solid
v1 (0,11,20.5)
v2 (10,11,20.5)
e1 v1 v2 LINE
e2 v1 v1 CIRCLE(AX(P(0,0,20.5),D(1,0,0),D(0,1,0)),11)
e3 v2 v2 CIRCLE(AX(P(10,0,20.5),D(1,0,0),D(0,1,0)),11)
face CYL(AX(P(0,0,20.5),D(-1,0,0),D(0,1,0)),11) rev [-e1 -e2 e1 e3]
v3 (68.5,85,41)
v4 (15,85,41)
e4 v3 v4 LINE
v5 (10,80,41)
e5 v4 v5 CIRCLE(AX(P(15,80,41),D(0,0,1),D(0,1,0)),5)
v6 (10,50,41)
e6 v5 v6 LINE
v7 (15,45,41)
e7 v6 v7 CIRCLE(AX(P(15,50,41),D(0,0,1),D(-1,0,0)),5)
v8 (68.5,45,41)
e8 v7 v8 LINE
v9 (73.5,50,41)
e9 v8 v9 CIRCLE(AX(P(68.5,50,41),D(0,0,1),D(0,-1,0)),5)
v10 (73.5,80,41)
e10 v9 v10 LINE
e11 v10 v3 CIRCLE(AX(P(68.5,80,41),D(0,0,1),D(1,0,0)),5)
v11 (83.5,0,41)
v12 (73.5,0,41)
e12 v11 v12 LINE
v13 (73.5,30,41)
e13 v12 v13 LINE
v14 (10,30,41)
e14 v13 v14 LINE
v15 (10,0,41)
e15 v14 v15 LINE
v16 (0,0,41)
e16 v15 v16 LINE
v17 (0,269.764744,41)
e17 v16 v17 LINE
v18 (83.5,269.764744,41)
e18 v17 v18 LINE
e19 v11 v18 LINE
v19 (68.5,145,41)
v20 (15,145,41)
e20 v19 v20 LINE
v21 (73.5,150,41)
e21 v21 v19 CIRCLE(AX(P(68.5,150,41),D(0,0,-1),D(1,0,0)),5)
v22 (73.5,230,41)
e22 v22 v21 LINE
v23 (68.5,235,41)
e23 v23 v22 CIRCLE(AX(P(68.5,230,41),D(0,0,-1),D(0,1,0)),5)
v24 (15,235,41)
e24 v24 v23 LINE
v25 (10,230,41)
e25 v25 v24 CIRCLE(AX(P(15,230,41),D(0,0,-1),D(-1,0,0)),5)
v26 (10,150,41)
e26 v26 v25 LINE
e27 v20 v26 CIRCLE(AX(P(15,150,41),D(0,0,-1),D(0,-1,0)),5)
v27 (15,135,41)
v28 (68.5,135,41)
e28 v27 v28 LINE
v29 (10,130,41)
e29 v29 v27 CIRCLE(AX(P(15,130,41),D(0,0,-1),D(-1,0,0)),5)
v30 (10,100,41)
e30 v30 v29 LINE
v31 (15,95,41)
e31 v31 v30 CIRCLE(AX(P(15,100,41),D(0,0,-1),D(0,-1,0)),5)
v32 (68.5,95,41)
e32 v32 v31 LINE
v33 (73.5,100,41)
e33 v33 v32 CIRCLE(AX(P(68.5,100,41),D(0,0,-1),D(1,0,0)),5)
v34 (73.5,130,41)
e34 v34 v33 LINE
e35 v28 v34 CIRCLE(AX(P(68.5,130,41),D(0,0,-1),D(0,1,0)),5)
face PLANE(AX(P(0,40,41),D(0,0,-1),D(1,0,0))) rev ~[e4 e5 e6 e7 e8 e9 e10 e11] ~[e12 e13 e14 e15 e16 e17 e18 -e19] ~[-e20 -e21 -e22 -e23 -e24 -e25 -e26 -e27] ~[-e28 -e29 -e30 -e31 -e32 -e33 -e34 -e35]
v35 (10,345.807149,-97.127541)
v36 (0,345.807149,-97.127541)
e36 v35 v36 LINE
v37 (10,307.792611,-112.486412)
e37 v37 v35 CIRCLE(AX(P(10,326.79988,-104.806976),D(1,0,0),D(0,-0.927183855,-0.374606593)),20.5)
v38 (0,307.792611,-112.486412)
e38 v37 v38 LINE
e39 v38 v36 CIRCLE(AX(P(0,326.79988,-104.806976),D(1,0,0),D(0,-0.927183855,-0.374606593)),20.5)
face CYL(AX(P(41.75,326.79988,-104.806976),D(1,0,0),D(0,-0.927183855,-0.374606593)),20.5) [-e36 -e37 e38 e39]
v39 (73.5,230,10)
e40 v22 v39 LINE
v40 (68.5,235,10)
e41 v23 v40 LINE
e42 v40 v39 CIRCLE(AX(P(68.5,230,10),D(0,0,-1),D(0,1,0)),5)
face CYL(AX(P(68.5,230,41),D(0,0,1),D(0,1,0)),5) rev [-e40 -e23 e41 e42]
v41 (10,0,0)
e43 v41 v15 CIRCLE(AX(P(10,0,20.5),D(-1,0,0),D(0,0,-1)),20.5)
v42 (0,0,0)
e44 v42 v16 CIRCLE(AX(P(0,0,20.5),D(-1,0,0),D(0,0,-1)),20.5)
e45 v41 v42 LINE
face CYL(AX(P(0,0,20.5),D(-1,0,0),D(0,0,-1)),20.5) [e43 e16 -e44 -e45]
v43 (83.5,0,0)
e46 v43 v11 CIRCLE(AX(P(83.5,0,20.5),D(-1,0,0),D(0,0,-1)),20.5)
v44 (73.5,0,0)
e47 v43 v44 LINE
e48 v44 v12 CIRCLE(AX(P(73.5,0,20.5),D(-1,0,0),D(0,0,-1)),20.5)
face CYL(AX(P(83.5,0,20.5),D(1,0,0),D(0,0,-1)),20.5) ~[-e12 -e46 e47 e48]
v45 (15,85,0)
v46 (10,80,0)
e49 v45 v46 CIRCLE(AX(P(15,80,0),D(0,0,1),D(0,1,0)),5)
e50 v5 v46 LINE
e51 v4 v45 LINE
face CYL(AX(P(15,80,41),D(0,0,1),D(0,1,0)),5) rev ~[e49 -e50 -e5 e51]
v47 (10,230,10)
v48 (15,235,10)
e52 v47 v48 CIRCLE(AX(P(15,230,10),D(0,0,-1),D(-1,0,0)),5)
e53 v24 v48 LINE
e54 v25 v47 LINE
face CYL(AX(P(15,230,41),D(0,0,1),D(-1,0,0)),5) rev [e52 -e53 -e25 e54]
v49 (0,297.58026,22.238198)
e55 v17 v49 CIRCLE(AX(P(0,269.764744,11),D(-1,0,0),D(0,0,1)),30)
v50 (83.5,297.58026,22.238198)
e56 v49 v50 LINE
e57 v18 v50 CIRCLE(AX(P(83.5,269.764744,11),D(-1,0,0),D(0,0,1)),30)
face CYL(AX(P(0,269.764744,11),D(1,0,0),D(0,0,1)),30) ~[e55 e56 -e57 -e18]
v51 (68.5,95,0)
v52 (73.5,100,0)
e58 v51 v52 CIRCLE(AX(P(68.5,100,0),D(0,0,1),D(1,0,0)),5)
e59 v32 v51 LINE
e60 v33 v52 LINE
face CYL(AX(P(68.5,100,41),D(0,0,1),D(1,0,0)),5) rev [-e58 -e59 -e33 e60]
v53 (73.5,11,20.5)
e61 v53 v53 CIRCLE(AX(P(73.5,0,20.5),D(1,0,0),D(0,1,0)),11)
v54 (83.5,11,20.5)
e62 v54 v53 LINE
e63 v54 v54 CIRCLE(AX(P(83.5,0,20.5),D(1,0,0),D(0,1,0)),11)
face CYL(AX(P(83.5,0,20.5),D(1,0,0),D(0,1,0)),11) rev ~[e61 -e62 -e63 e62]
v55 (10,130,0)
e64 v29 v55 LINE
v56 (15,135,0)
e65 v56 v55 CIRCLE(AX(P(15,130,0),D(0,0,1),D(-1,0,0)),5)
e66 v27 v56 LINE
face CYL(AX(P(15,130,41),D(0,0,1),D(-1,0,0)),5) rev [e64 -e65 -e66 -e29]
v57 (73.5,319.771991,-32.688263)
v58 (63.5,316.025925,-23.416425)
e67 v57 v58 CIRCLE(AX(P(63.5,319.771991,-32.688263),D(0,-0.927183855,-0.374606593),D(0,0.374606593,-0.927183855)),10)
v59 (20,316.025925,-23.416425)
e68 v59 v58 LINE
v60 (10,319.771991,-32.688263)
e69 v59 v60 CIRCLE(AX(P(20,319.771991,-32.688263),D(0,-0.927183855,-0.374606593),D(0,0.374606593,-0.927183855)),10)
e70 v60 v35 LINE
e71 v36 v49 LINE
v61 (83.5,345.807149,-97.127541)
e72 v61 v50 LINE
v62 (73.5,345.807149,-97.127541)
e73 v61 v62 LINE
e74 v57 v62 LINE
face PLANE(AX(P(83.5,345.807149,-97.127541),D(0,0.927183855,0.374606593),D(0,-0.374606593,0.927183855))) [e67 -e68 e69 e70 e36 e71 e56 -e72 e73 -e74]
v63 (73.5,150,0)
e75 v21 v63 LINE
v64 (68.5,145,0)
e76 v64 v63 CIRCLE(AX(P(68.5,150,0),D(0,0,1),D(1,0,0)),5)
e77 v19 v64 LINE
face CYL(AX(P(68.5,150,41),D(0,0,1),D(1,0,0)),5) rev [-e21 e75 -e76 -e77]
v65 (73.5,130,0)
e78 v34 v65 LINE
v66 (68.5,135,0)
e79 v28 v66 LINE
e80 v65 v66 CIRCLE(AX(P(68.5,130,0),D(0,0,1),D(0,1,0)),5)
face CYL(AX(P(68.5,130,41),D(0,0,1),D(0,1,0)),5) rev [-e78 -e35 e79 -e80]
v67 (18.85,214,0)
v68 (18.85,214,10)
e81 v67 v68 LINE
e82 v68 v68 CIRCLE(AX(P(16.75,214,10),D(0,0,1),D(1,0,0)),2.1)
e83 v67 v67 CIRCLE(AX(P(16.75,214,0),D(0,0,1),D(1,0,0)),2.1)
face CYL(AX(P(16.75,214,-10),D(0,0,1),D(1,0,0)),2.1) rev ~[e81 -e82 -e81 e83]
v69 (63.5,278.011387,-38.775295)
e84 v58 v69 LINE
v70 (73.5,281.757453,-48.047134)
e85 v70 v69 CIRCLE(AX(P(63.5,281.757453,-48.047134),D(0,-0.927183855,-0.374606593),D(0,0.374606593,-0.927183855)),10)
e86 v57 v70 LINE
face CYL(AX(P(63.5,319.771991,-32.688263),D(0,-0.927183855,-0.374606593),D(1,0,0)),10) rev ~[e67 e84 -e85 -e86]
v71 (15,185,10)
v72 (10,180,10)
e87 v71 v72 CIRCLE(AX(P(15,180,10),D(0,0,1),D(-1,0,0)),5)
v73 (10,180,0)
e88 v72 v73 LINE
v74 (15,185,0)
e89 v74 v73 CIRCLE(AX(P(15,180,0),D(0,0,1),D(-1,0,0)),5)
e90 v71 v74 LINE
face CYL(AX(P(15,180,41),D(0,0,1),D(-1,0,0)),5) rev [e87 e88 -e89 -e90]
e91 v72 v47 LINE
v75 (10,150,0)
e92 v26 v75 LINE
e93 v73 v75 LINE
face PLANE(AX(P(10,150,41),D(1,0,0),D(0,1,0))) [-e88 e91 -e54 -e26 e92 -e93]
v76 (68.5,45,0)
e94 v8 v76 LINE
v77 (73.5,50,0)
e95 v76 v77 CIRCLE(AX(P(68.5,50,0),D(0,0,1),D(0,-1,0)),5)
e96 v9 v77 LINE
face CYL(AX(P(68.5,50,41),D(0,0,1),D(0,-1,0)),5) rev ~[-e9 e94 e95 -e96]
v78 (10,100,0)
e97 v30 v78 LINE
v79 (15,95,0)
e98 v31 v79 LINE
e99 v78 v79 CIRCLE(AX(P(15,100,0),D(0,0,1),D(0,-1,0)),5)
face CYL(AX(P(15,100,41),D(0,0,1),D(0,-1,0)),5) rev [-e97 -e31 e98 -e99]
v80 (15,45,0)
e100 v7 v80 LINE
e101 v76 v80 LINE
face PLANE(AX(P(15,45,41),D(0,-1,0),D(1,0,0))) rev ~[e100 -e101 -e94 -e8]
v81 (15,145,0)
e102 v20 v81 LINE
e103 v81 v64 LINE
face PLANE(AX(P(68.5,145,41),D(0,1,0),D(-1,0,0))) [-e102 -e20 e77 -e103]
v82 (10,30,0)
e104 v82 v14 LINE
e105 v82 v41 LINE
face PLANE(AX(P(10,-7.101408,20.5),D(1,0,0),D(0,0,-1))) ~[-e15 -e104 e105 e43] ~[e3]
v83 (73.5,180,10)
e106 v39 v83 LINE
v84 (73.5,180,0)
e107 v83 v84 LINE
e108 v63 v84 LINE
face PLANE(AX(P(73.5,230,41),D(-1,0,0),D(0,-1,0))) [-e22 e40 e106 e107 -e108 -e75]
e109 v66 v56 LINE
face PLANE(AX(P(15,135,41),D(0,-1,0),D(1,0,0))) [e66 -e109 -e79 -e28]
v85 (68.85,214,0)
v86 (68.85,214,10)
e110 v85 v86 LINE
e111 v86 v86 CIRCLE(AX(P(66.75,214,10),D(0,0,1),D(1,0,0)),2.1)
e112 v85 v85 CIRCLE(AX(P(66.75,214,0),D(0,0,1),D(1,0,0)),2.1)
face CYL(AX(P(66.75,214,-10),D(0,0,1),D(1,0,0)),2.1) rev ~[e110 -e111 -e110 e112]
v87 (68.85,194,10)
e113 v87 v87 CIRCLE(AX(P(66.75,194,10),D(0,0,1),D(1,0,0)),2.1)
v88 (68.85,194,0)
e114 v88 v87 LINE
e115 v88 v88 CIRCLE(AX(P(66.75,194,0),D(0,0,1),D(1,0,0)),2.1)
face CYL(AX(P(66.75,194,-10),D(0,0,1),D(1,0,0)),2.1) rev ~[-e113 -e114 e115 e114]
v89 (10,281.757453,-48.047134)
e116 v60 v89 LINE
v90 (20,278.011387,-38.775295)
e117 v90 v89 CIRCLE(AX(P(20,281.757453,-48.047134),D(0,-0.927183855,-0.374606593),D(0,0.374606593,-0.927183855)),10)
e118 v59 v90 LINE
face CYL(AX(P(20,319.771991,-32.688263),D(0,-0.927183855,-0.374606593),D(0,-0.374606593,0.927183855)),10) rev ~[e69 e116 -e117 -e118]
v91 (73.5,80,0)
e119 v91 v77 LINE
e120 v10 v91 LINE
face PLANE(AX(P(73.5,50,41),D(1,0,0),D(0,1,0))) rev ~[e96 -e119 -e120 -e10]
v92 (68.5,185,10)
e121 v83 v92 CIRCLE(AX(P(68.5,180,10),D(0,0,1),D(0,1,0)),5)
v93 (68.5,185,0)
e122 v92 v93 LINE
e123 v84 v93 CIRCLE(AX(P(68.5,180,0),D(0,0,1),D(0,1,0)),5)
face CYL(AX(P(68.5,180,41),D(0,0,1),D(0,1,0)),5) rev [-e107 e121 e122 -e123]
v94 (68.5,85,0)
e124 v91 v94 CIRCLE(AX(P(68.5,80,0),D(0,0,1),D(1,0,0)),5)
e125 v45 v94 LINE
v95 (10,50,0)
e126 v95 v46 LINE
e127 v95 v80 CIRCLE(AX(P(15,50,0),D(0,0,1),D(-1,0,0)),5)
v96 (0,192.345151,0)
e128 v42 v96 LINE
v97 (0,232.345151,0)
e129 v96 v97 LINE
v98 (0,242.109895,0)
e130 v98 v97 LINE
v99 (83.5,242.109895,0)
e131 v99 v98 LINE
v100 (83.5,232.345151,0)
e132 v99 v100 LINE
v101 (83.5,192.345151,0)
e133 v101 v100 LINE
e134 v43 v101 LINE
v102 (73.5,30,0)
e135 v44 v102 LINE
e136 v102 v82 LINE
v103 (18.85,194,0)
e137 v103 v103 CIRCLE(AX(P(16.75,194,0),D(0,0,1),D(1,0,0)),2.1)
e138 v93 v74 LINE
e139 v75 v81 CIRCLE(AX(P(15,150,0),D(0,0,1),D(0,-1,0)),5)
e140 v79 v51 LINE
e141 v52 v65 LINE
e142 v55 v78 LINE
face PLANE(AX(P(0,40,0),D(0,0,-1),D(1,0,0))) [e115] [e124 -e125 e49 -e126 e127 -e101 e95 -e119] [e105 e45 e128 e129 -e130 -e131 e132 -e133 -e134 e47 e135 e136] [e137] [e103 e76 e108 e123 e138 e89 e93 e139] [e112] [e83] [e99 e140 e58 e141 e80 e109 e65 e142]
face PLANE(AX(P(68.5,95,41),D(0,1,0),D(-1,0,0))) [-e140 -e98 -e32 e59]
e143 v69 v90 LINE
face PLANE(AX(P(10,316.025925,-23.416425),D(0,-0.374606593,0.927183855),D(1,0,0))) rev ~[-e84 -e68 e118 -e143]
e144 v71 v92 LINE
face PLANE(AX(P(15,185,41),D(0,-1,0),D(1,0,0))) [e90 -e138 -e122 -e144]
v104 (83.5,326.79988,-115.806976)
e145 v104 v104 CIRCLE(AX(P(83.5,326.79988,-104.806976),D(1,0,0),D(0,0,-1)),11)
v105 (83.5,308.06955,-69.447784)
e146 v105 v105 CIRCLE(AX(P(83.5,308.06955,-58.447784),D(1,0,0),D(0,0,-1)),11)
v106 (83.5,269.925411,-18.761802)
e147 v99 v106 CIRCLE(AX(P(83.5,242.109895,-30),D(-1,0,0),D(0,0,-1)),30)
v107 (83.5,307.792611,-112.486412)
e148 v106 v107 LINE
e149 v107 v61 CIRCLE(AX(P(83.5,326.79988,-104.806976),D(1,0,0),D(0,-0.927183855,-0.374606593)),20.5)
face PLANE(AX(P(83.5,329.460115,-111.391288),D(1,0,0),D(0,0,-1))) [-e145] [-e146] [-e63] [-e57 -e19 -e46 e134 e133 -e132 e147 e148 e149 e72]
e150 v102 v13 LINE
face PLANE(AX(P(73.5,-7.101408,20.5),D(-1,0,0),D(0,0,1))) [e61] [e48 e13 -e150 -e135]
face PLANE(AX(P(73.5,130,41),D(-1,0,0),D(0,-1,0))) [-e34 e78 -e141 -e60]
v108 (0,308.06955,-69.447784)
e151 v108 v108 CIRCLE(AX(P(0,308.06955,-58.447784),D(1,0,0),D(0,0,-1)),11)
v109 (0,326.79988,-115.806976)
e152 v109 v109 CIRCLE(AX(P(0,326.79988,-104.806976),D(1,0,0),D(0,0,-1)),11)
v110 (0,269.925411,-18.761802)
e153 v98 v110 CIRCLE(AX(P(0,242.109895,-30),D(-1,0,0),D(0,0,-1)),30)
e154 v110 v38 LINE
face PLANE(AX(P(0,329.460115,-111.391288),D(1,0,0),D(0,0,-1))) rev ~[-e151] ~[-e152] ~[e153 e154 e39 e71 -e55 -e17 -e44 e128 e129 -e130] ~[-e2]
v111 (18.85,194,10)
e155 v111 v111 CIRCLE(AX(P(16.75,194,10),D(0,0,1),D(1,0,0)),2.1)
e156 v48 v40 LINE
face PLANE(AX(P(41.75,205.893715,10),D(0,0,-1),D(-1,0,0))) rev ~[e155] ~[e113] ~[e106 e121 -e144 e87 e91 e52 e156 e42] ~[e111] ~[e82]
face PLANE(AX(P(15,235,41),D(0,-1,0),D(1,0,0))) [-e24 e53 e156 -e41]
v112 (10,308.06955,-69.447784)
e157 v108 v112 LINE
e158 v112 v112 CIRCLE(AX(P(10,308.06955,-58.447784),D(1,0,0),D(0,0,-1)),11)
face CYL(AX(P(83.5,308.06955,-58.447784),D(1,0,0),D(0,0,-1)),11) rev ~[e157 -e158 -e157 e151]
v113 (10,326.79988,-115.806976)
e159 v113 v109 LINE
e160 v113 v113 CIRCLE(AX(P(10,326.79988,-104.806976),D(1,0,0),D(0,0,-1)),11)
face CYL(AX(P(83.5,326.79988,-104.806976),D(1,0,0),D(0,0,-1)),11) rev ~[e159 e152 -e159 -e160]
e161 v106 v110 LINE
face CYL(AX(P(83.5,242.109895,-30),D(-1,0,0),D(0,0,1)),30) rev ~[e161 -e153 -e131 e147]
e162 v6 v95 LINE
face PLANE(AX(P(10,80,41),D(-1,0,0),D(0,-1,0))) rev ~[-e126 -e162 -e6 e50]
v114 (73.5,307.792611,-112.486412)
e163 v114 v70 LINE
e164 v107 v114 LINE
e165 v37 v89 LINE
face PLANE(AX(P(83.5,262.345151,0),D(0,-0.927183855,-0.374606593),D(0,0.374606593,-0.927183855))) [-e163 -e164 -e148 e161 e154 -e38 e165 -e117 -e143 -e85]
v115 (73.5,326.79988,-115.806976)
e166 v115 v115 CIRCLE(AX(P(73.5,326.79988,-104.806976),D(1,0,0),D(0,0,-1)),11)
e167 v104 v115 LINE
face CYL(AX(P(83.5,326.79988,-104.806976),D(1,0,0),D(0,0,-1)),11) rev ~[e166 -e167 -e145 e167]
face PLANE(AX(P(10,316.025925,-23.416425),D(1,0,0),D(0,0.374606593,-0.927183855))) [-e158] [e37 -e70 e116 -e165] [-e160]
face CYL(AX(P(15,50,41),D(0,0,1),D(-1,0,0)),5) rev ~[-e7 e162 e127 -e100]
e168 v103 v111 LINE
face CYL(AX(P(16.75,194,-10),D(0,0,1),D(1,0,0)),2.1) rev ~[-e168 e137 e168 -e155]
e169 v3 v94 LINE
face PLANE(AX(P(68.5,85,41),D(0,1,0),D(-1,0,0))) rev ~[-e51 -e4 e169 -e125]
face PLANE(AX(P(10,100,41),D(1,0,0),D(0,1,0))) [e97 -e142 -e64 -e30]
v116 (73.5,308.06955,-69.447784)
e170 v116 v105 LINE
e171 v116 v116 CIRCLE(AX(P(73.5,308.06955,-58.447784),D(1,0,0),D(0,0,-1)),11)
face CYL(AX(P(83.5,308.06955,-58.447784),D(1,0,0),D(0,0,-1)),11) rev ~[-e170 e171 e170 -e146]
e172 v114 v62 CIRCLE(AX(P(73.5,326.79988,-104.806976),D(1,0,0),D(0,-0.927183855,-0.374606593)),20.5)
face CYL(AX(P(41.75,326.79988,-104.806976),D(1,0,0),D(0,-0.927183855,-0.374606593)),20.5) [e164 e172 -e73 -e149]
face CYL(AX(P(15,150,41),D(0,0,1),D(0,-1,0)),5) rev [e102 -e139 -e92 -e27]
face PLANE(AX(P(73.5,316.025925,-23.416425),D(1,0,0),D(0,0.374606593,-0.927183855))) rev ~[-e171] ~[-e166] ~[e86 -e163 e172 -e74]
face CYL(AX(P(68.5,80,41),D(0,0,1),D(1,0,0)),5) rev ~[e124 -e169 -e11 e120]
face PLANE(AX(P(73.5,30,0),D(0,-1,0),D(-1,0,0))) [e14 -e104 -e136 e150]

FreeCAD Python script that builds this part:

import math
import FreeCAD as App
import Part
import Sketcher

V = App.Vector
Q = App.Units.Quantity


def edges_at(feature, points):
    """Names of the edges that pass closest to the given points."""
    edges = feature.Shape.Edges
    near = lambda p: min(range(len(edges)), key=lambda i: edges[i].distToShape(Part.Vertex(*p))[0])
    return sorted({f"Edge{near(p) + 1}" for p in points})

doc = App.newDocument("Part")
body = doc.addObject("PartDesign::Body", "Body")

sketch1 = doc.addObject("Sketcher::SketchObject", "Sketch")
body.addObject(sketch1)
sketch1.AttachmentSupport = (doc.XY_Plane, [""])
sketch1.MapMode = "FlatFace"
sketch1.addGeometry([
    Part.LineSegment(V(0, 40, 0), V(0, 0, 0)),
    Part.LineSegment(V(0, 0, 0), V(10, 0, 0)),
    Part.LineSegment(V(10, 0, 0), V(10, 30, 0)),
    Part.LineSegment(V(10, 30, 0), V(74, 30, 0)),
    Part.LineSegment(V(74, 30, 0), V(74, 0, 0)),
    Part.LineSegment(V(74, 0, 0), V(84, 0, 0)),
    Part.LineSegment(V(84, 0, 0), V(84, 40, 0)),
    Part.LineSegment(V(84, 40, 0), V(0, 40, 0)),
], False)
sketch1.addConstraint([
    Sketcher.Constraint("Coincident", 0, 2, 1, 1),
    Sketcher.Constraint("Coincident", 1, 2, 2, 1),
    Sketcher.Constraint("Coincident", 2, 2, 3, 1),
    Sketcher.Constraint("Coincident", 3, 2, 4, 1),
    Sketcher.Constraint("Coincident", 4, 2, 5, 1),
    Sketcher.Constraint("Coincident", 5, 2, 6, 1),
    Sketcher.Constraint("Coincident", 6, 2, 7, 1),
    Sketcher.Constraint("Coincident", 7, 2, 0, 1),
    Sketcher.Constraint("Vertical", 0),
    Sketcher.Constraint("Horizontal", 1),
    Sketcher.Constraint("Vertical", 2),
    Sketcher.Constraint("Horizontal", 3),
    Sketcher.Constraint("Vertical", 4),
    Sketcher.Constraint("Horizontal", 5),
    Sketcher.Constraint("Vertical", 6),
    Sketcher.Constraint("Horizontal", 7),
    Sketcher.Constraint("Coincident", 0, 2, -1, 1),
    Sketcher.Constraint("PointOnObject", 4, 2, -1),
    Sketcher.Constraint("Equal", 1, 5),
    Sketcher.Constraint("DistanceX", 1, 1, 1, 2, Q("10 mm")),
    Sketcher.Constraint("DistanceY", 0, 2, 0, 1, Q("40 mm")),
    Sketcher.Constraint("DistanceY", 2, 1, 2, 2, Q("30 mm")),
    Sketcher.Constraint("DistanceX", 3, 1, 3, 2, Q("63.5 mm")),
])
pad1 = doc.addObject("PartDesign::Pad", "Pad")
body.addObject(pad1)
pad1.Profile = sketch1
pad1.Length = 41

sketch2 = doc.addObject("Sketcher::SketchObject", "Sketch001")
body.addObject(sketch2)
sketch2.AttachmentSupport = (doc.YZ_Plane, [""])
sketch2.MapMode = "FlatFace"
sketch2.AttachmentOffset = App.Placement(V(0, 0, 83.5), App.Rotation())
sketch2.addGeometry([
    Part.LineSegment(V(0, 0, 0), V(0, 41, 0)),
    Part.ArcOfCircle(Part.Circle(V(0, 20, 0), V(0, 0, 1), 20), math.radians(90), math.radians(270)),
], False)
sketch2.addConstraint([
    Sketcher.Constraint("Coincident", 0, 1, 1, 2),
    Sketcher.Constraint("Coincident", 1, 1, 0, 2),
    Sketcher.Constraint("Vertical", 0),
    Sketcher.Constraint("Coincident", 0, 1, -1, 1),
    Sketcher.Constraint("PointOnObject", 1, 3, -2),
    Sketcher.Constraint("Radius", 1, Q("20.5 mm")),
])
pad2 = doc.addObject("PartDesign::Pad", "Pad001")
body.addObject(pad2)
pad2.Profile = sketch2
pad2.Length = 10
pad2.Reversed = True

sketch3 = doc.addObject("Sketcher::SketchObject", "Sketch002")
body.addObject(sketch3)
sketch3.AttachmentSupport = (doc.YZ_Plane, [""])
sketch3.MapMode = "FlatFace"
sketch3.AttachmentOffset = App.Placement(V(0, 0, 83.5), App.Rotation())
sketch3.addGeometry(Part.Circle(V(0, 20, 0), V(0, 0, 1), 11), False)
sketch3.addConstraint([
    Sketcher.Constraint("PointOnObject", 0, 3, -2),
    Sketcher.Constraint("Diameter", 0, Q("22 mm")),
    Sketcher.Constraint("DistanceY", -1, 1, 0, 3, Q("20.5 mm")),
])
pocket1 = doc.addObject("PartDesign::Pocket", "Pocket")
body.addObject(pocket1)
pocket1.Profile = sketch3
pocket1.Length = 10
doc.recompute()

datumplane = doc.addObject("PartDesign::Plane", "DatumPlane")
body.addObject(datumplane)
datumplane.AttachmentSupport = (doc.YZ_Plane, [""])
datumplane.MapMode = "FlatFace"
datumplane.AttachmentOffset = App.Placement(V(0, 0, 41.75), App.Rotation())
mirrored = doc.addObject("PartDesign::Mirrored", "Mirrored")
body.addObject(mirrored)
mirrored.Originals = [pad2, pocket1]
mirrored.MirrorPlane = (datumplane, [""])
body.Tip = mirrored

sketch4 = doc.addObject("Sketcher::SketchObject", "Sketch003")
body.addObject(sketch4)
sketch4.AttachmentSupport = (doc.XZ_Plane, [""])
sketch4.MapMode = "FlatFace"
sketch4.AttachmentOffset = App.Placement(V(0, 0, -40), App.Rotation())
sketch4.addGeometry([
    Part.LineSegment(V(0, 0, 0), V(0, 41, 0)),
    Part.LineSegment(V(0, 41, 0), V(84, 41, 0)),
    Part.LineSegment(V(84, 41, 0), V(84, 0, 0)),
    Part.LineSegment(V(84, 0, 0), V(0, 0, 0)),
], False)
sketch4.addConstraint([
    Sketcher.Constraint("Coincident", 0, 2, 1, 1),
    Sketcher.Constraint("Coincident", 1, 2, 2, 1),
    Sketcher.Constraint("Coincident", 2, 2, 3, 1),
    Sketcher.Constraint("Coincident", 3, 2, 0, 1),
    Sketcher.Constraint("Vertical", 0),
    Sketcher.Constraint("Horizontal", 1),
    Sketcher.Constraint("Vertical", 2),
    Sketcher.Constraint("Horizontal", 3),
    Sketcher.Constraint("Coincident", 3, 2, -1, 1),
    Sketcher.Constraint("DistanceY", 0, 1, 0, 2, Q("41 mm")),
    Sketcher.Constraint("DistanceX", 1, 1, 1, 2, Q("83.5 mm")),
])
pad3 = doc.addObject("PartDesign::Pad", "Pad002")
body.addObject(pad3)
pad3.Profile = sketch4
pad3.Length = 250
pad3.Reversed = True

sketch5 = doc.addObject("Sketcher::SketchObject", "Sketch004")
body.addObject(sketch5)
sketch5.AttachmentSupport = (doc.XY_Plane, [""])
sketch5.MapMode = "FlatFace"
sketch5.AttachmentOffset = App.Placement(V(0, 0, 41), App.Rotation())
sketch5.addGeometry([
    Part.LineSegment(V(15, 45, 0), V(68, 45, 0)),
    Part.ArcOfCircle(Part.Circle(V(68, 50, 0), V(0, 0, 1), 5), math.radians(-90), math.radians(0)),
    Part.LineSegment(V(74, 50, 0), V(74, 80, 0)),
    Part.ArcOfCircle(Part.Circle(V(68, 80, 0), V(0, 0, 1), 5), math.radians(0), math.radians(90)),
    Part.LineSegment(V(68, 85, 0), V(15, 85, 0)),
    Part.ArcOfCircle(Part.Circle(V(15, 80, 0), V(0, 0, 1), 5), math.radians(90), math.radians(180)),
    Part.LineSegment(V(10, 80, 0), V(10, 50, 0)),
    Part.ArcOfCircle(Part.Circle(V(15, 50, 0), V(0, 0, 1), 5), math.radians(180), math.radians(270)),
    Part.LineSegment(V(10, 130, 0), V(10, 100, 0)),
    Part.ArcOfCircle(Part.Circle(V(15, 100, 0), V(0, 0, 1), 5), math.radians(180), math.radians(270)),
    Part.LineSegment(V(15, 95, 0), V(68, 95, 0)),
    Part.ArcOfCircle(Part.Circle(V(68, 100, 0), V(0, 0, 1), 5), math.radians(-90), math.radians(0)),
    Part.LineSegment(V(74, 100, 0), V(74, 130, 0)),
    Part.ArcOfCircle(Part.Circle(V(68, 130, 0), V(0, 0, 1), 5), math.radians(0), math.radians(90)),
    Part.LineSegment(V(68, 135, 0), V(15, 135, 0)),
    Part.ArcOfCircle(Part.Circle(V(15, 130, 0), V(0, 0, 1), 5), math.radians(90), math.radians(180)),
    Part.LineSegment(V(10, 180, 0), V(10, 150, 0)),
    Part.ArcOfCircle(Part.Circle(V(15, 150, 0), V(0, 0, 1), 5), math.radians(180), math.radians(270)),
    Part.LineSegment(V(15, 145, 0), V(68, 145, 0)),
    Part.ArcOfCircle(Part.Circle(V(68, 150, 0), V(0, 0, 1), 5), math.radians(-90), math.radians(0)),
    Part.LineSegment(V(74, 150, 0), V(74, 180, 0)),
    Part.ArcOfCircle(Part.Circle(V(68, 180, 0), V(0, 0, 1), 5), math.radians(0), math.radians(90)),
    Part.LineSegment(V(68, 185, 0), V(15, 185, 0)),
    Part.ArcOfCircle(Part.Circle(V(15, 180, 0), V(0, 0, 1), 5), math.radians(90), math.radians(180)),
], False)
sketch5.addConstraint([
    Sketcher.Constraint("Tangent", 0, 2, 1, 1),
    Sketcher.Constraint("Tangent", 1, 2, 2, 1),
    Sketcher.Constraint("Tangent", 2, 2, 3, 1),
    Sketcher.Constraint("Tangent", 3, 2, 4, 1),
    Sketcher.Constraint("Tangent", 4, 2, 5, 1),
    Sketcher.Constraint("Tangent", 5, 2, 6, 1),
    Sketcher.Constraint("Tangent", 6, 2, 7, 1),
    Sketcher.Constraint("Tangent", 7, 2, 0, 1),
    Sketcher.Constraint("Tangent", 8, 2, 9, 1),
    Sketcher.Constraint("Tangent", 9, 2, 10, 1),
    Sketcher.Constraint("Tangent", 10, 2, 11, 1),
    Sketcher.Constraint("Tangent", 11, 2, 12, 1),
    Sketcher.Constraint("Tangent", 12, 2, 13, 1),
    Sketcher.Constraint("Tangent", 13, 2, 14, 1),
    Sketcher.Constraint("Tangent", 14, 2, 15, 1),
    Sketcher.Constraint("Tangent", 15, 2, 8, 1),
    Sketcher.Constraint("Tangent", 16, 2, 17, 1),
    Sketcher.Constraint("Tangent", 17, 2, 18, 1),
    Sketcher.Constraint("Tangent", 18, 2, 19, 1),
    Sketcher.Constraint("Tangent", 19, 2, 20, 1),
    Sketcher.Constraint("Tangent", 20, 2, 21, 1),
    Sketcher.Constraint("Tangent", 21, 2, 22, 1),
    Sketcher.Constraint("Tangent", 22, 2, 23, 1),
    Sketcher.Constraint("Tangent", 23, 2, 16, 1),
    Sketcher.Constraint("Horizontal", 0),
    Sketcher.Constraint("Vertical", 2),
    Sketcher.Constraint("Horizontal", 4),
    Sketcher.Constraint("Vertical", 6),
    Sketcher.Constraint("Vertical", 8),
    Sketcher.Constraint("Horizontal", 10),
    Sketcher.Constraint("Vertical", 12),
    Sketcher.Constraint("Horizontal", 14),
    Sketcher.Constraint("Vertical", 16),
    Sketcher.Constraint("Horizontal", 18),
    Sketcher.Constraint("Vertical", 20),
    Sketcher.Constraint("Horizontal", 22),
    Sketcher.Constraint("Equal", 1, 3),
    Sketcher.Constraint("Equal", 3, 5),
    Sketcher.Constraint("Equal", 5, 7),
    Sketcher.Constraint("Equal", 7, 9),
    Sketcher.Constraint("Equal", 9, 11),
    Sketcher.Constraint("Equal", 11, 13),
    Sketcher.Constraint("Equal", 13, 15),
    Sketcher.Constraint("Equal", 15, 17),
    Sketcher.Constraint("Equal", 17, 19),
    Sketcher.Constraint("Equal", 19, 21),
    Sketcher.Constraint("Equal", 21, 23),
    Sketcher.Constraint("Vertical", 7, 3, 9, 3),
    Sketcher.Constraint("Vertical", 3, 3, 11, 3),
    Sketcher.Constraint("Vertical", 15, 3, 17, 3),
    Sketcher.Constraint("Vertical", 13, 3, 19, 3),
    Sketcher.Constraint("Equal", 6, 8),
    Sketcher.Constraint("Equal", 12, 16),
    Sketcher.Constraint("Radius", 1, Q("5 mm")),
    Sketcher.Constraint("DistanceY", 2, 1, 2, 2, Q("30 mm")),
    Sketcher.Constraint("DistanceX", 0, 1, 0, 2, Q("53.5 mm")),
    Sketcher.Constraint("DistanceY", -1, 1, 1, 3, Q("50 mm")),
    Sketcher.Constraint("DistanceX", -1, 1, 5, 3, Q("15 mm")),
    Sketcher.Constraint("DistanceY", -1, 1, 9, 3, Q("100 mm")),
    Sketcher.Constraint("DistanceY", -1, 1, 17, 3, Q("150 mm")),
])
pocket2 = doc.addObject("PartDesign::Pocket", "Pocket001")
body.addObject(pocket2)
pocket2.Profile = sketch5
pocket2.Length = 309

sketch6 = doc.addObject("Sketcher::SketchObject", "Sketch005")
body.addObject(sketch6)
sketch6.AttachmentSupport = (doc.YZ_Plane, [""])
sketch6.MapMode = "FlatFace"
sketch6.AttachmentOffset = App.Placement(V(0, 0, 83.5), App.Rotation())
sketch6.addGeometry([
    Part.LineSegment(V(262, 0, 0), V(308, -112, 0)),
    Part.LineSegment(V(308, -112, 0), V(346, -97, 0)),
    Part.LineSegment(V(346, -97, 0), V(290, 41, 0)),
    Part.LineSegment(V(290, 41, 0), V(262, 0, 0)),
], False)
sketch6.addConstraint([
    Sketcher.Constraint("Coincident", 0, 2, 1, 1),
    Sketcher.Constraint("Coincident", 1, 2, 2, 1),
    Sketcher.Constraint("Coincident", 2, 2, 3, 1),
    Sketcher.Constraint("Coincident", 3, 2, 0, 1),
    Sketcher.Constraint("PointOnObject", 3, 2, -1),
    Sketcher.Constraint("Perpendicular", 0, 1),
    Sketcher.Constraint("Perpendicular", 1, 2),
    Sketcher.Constraint("Angle", 0, Q("-68 deg")),
    Sketcher.Constraint("Angle", 3, Q("-124 deg")),
    Sketcher.Constraint("Distance", 1, Q("41 mm")),
    Sketcher.Constraint("DistanceX", -1, 1, 2, 2, Q("290 mm")),
    Sketcher.Constraint("DistanceX", 3, 2, 1, 2, Q("83.461998 mm")),
])
pad4 = doc.addObject("PartDesign::Pad", "Pad003")
body.addObject(pad4)
pad4.Profile = sketch6
pad4.Length = 83.5
pad4.Reversed = True

sketch7 = doc.addObject("Sketcher::SketchObject", "Sketch006")
body.addObject(sketch7)
sketch7.AttachmentSupport = (doc.YZ_Plane, [""])
sketch7.MapMode = "FlatFace"
sketch7.AttachmentOffset = App.Placement(V(0, 0, 41.75), App.Rotation())
sketch7.addGeometry([
    Part.LineSegment(V(232, 0, 0), V(192, 0, 0)),
    Part.LineSegment(V(192, 0, 0), V(192, -55, 0)),
    Part.LineSegment(V(192, -55, 0), V(210, -55, 0)),
    Part.LineSegment(V(210, -55, 0), V(232, 0, 0)),
], False)
sketch7.addConstraint([
    Sketcher.Constraint("Coincident", 0, 2, 1, 1),
    Sketcher.Constraint("Coincident", 1, 2, 2, 1),
    Sketcher.Constraint("Coincident", 2, 2, 3, 1),
    Sketcher.Constraint("Coincident", 3, 2, 0, 1),
    Sketcher.Constraint("Horizontal", 0),
    Sketcher.Constraint("Vertical", 1),
    Sketcher.Constraint("Horizontal", 2),
    Sketcher.Constraint("PointOnObject", 0, 2, -1),
    Sketcher.Constraint("DistanceX", 0, 2, 0, 1, Q("40 mm")),
    Sketcher.Constraint("DistanceX", 2, 1, 2, 2, Q("18 mm")),
    Sketcher.Constraint("DistanceY", 1, 2, 1, 1, Q("55 mm")),
    Sketcher.Constraint("DistanceX", -1, 1, 0, 2, Q("192.345151 mm")),
])
pad5 = doc.addObject("PartDesign::Pad", "Pad004")
body.addObject(pad5)
pad5.Profile = sketch7
pad5.Length = 83.5
pad5.Midplane = True
doc.recompute()

fillet = doc.addObject("PartDesign::Fillet", "Fillet")
body.addObject(fillet)
fillet.Base = (pad5, edges_at(pad5, [(41.75, 192.345, -55)]))
fillet.Radius = 8

sketch8 = doc.addObject("Sketcher::SketchObject", "Sketch007")
body.addObject(sketch8)
sketch8.AttachmentSupport = (doc.YZ_Plane, [""])
sketch8.MapMode = "FlatFace"
sketch8.AttachmentOffset = App.Placement(V(0, 0, 83.5), App.Rotation())
sketch8.addGeometry(Part.Circle(V(200, -47, 0), V(0, 0, 1), 6), False)
sketch8.addConstraint([
    Sketcher.Constraint("Diameter", 0, Q("11 mm")),
    Sketcher.Constraint("DistanceY", 0, 3, -1, 1, Q("47 mm")),
    Sketcher.Constraint("DistanceX", -1, 1, 0, 3, Q("200.345151 mm")),
])
pocket3 = doc.addObject("PartDesign::Pocket", "Pocket002")
body.addObject(pocket3)
pocket3.Profile = sketch8
pocket3.Length = 92

sketch9 = doc.addObject("Sketcher::SketchObject", "Sketch008")
body.addObject(sketch9)
sketch9.AttachmentSupport = (doc.YZ_Plane, [""])
sketch9.MapMode = "FlatFace"
sketch9.AttachmentOffset = App.Placement(V(0, 0, 41.75), App.Rotation())
sketch9.addGeometry([
    Part.LineSegment(V(346, -97, 0), V(308, -112, 0)),
    Part.ArcOfCircle(Part.Circle(V(327, -105, 0), V(0, 0, 1), 20), math.radians(-158), math.radians(22)),
], False)
sketch9.addConstraint([
    Sketcher.Constraint("Coincident", 0, 1, 1, 2),
    Sketcher.Constraint("Coincident", 1, 1, 0, 2),
    Sketcher.Constraint("Radius", 1, Q("20.5 mm")),
    Sketcher.Constraint("Angle", 0, Q("-158 deg")),
    Sketcher.Constraint("DistanceX", -1, 1, 1, 3, Q("326.79988 mm")),
    Sketcher.Constraint("DistanceX", -1, 1, 0, 1, Q("345.807149 mm")),
    Sketcher.Constraint("DistanceY", 0, 1, -1, 1, Q("97.127541 mm")),
])
pad6 = doc.addObject("PartDesign::Pad", "Pad005")
body.addObject(pad6)
pad6.Profile = sketch9
pad6.Length = 83.5
pad6.Midplane = True

sketch10 = doc.addObject("Sketcher::SketchObject", "Sketch009")
body.addObject(sketch10)
sketch10.AttachmentSupport = (doc.YZ_Plane, [""])
sketch10.MapMode = "FlatFace"
sketch10.AttachmentOffset = App.Placement(V(0, 0, 83.5), App.Rotation())
sketch10.addGeometry([
    Part.Circle(V(327, -105, 0), V(0, 0, 1), 11),
    Part.Circle(V(308, -58, 0), V(0, 0, 1), 11),
], False)
sketch10.addConstraint([
    Sketcher.Constraint("Equal", 0, 1),
    Sketcher.Constraint("Diameter", 0, Q("22 mm")),
    Sketcher.Constraint("DistanceX", -1, 1, 0, 3, Q("326.79988 mm")),
    Sketcher.Constraint("DistanceX", -1, 1, 1, 3, Q("308.06955 mm")),
    Sketcher.Constraint("DistanceY", 0, 3, -1, 1, Q("104.806976 mm")),
    Sketcher.Constraint("DistanceY", 1, 3, -1, 1, Q("58.447784 mm")),
])
pocket4 = doc.addObject("PartDesign::Pocket", "Pocket003")
body.addObject(pocket4)
pocket4.Profile = sketch10
pocket4.Length = 185
pocket4.Midplane = True

sketch11 = doc.addObject("Sketcher::SketchObject", "Sketch010")
body.addObject(sketch11)
sketch11.Placement = App.Placement(V(0, 263.544768, 106.478998), App.Rotation(V(1, 0, 0), V(0, 0.374606593, -0.927183855), V(0, 0.927183855, 0.374606593), "ZXY"))
sketch11.addGeometry([
    Part.LineSegment(V(10, 240, 0), V(10, 140, 0)),
    Part.LineSegment(V(10, 140, 0), V(74, 140, 0)),
    Part.LineSegment(V(74, 140, 0), V(74, 240, 0)),
    Part.LineSegment(V(74, 240, 0), V(10, 240, 0)),
], False)
sketch11.addConstraint([
    Sketcher.Constraint("Coincident", 0, 2, 1, 1),
    Sketcher.Constraint("Coincident", 1, 2, 2, 1),
    Sketcher.Constraint("Coincident", 2, 2, 3, 1),
    Sketcher.Constraint("Coincident", 3, 2, 0, 1),
    Sketcher.Constraint("Vertical", 0),
    Sketcher.Constraint("Horizontal", 1),
    Sketcher.Constraint("Vertical", 2),
    Sketcher.Constraint("Horizontal", 3),
    Sketcher.Constraint("DistanceY", 0, 2, 0, 1, Q("100 mm")),
    Sketcher.Constraint("DistanceX", 1, 1, 1, 2, Q("63.5 mm")),
    Sketcher.Constraint("DistanceX", -1, 1, 0, 2, Q("10 mm")),
    Sketcher.Constraint("DistanceY", -1, 1, 0, 2, Q("140.096726 mm")),
])
pocket5 = doc.addObject("PartDesign::Pocket", "Pocket004")
body.addObject(pocket5)
pocket5.Profile = sketch11
pocket5.Length = 65
doc.recompute()

fillet2 = doc.addObject("PartDesign::Fillet", "Fillet001")
body.addObject(fillet2)
fillet2.Base = (pocket5, edges_at(pocket5, [(41.75, 262.345, 0), (41.75, 290, 41)]))
fillet2.Radius = 30

sketch12 = doc.addObject("Sketcher::SketchObject", "Sketch011")
body.addObject(sketch12)
sketch12.AttachmentSupport = (doc.YZ_Plane, [""])
sketch12.MapMode = "FlatFace"
sketch12.AttachmentOffset = App.Placement(V(0, 0, 41.75), App.Rotation())
sketch12.addGeometry([
    Part.LineSegment(V(232, 0, 0), V(192, 0, 0)),
    Part.LineSegment(V(192, 0, 0), V(192, -55, 0)),
    Part.LineSegment(V(192, -55, 0), V(210, -55, 0)),
    Part.LineSegment(V(210, -55, 0), V(232, 0, 0)),
], False)
sketch12.addConstraint([
    Sketcher.Constraint("Coincident", 0, 2, 1, 1),
    Sketcher.Constraint("Coincident", 1, 2, 2, 1),
    Sketcher.Constraint("Coincident", 2, 2, 3, 1),
    Sketcher.Constraint("Coincident", 3, 2, 0, 1),
    Sketcher.Constraint("Horizontal", 0),
    Sketcher.Constraint("Vertical", 1),
    Sketcher.Constraint("Horizontal", 2),
    Sketcher.Constraint("PointOnObject", 0, 2, -1),
    Sketcher.Constraint("DistanceX", 0, 2, 0, 1, Q("40 mm")),
    Sketcher.Constraint("DistanceX", 2, 1, 2, 2, Q("18 mm")),
    Sketcher.Constraint("DistanceY", 1, 2, 1, 1, Q("55 mm")),
    Sketcher.Constraint("DistanceX", -1, 1, 0, 2, Q("192.345151 mm")),
])
pocket6 = doc.addObject("PartDesign::Pocket", "Pocket005")
body.addObject(pocket6)
pocket6.Profile = sketch12
pocket6.Length = 75.5
pocket6.Midplane = True

sketch13 = doc.addObject("Sketcher::SketchObject", "Sketch012")
body.addObject(sketch13)
sketch13.AttachmentSupport = (doc.YZ_Plane, [""])
sketch13.MapMode = "FlatFace"
sketch13.AttachmentOffset = App.Placement(V(0, 0, 83.5), App.Rotation())
sketch13.addGeometry([
    Part.LineSegment(V(232, 0, 0), V(191, 0, 0)),
    Part.LineSegment(V(191, 0, 0), V(191, -70, 0)),
    Part.LineSegment(V(191, -70, 0), V(232, -70, 0)),
    Part.LineSegment(V(232, -70, 0), V(232, 0, 0)),
], False)
sketch13.addConstraint([
    Sketcher.Constraint("Coincident", 0, 2, 1, 1),
    Sketcher.Constraint("Coincident", 1, 2, 2, 1),
    Sketcher.Constraint("Coincident", 2, 2, 3, 1),
    Sketcher.Constraint("Coincident", 3, 2, 0, 1),
    Sketcher.Constraint("Horizontal", 0),
    Sketcher.Constraint("Vertical", 1),
    Sketcher.Constraint("Horizontal", 2),
    Sketcher.Constraint("Vertical", 3),
    Sketcher.Constraint("PointOnObject", 0, 2, -1),
    Sketcher.Constraint("DistanceX", 0, 2, 0, 1, Q("41.669127 mm")),
    Sketcher.Constraint("DistanceY", 1, 2, 1, 1, Q("70.175184 mm")),
    Sketcher.Constraint("DistanceX", -1, 1, 2, 2, Q("232.345151 mm")),
])
pocket7 = doc.addObject("PartDesign::Pocket", "Pocket006")
body.addObject(pocket7)
pocket7.Profile = sketch13
pocket7.Length = 90.5

sketch14 = doc.addObject("Sketcher::SketchObject", "Sketch013")
body.addObject(sketch14)
sketch14.AttachmentSupport = (doc.XY_Plane, [""])
sketch14.MapMode = "FlatFace"
sketch14.addGeometry([
    Part.Circle(V(66.8, 214, 0), V(0, 0, 1), 2.1),
    Part.Circle(V(16.8, 214, 0), V(0, 0, 1), 2.1),
    Part.Circle(V(16.8, 194, 0), V(0, 0, 1), 2.1),
    Part.Circle(V(66.8, 194, 0), V(0, 0, 1), 2.1),
], False)
sketch14.addConstraint([
    Sketcher.Constraint("Equal", 0, 1),
    Sketcher.Constraint("Equal", 1, 2),
    Sketcher.Constraint("Equal", 2, 3),
    Sketcher.Constraint("Horizontal", 0, 3, 1, 3),
    Sketcher.Constraint("Horizontal", 2, 3, 3, 3),
    Sketcher.Constraint("Vertical", 1, 3, 2, 3),
    Sketcher.Constraint("Vertical", 0, 3, 3, 3),
    Sketcher.Constraint("Diameter", 0, Q("4.2 mm")),
    Sketcher.Constraint("DistanceY", -1, 1, 0, 3, Q("214 mm")),
    Sketcher.Constraint("DistanceY", -1, 1, 2, 3, Q("194 mm")),
    Sketcher.Constraint("DistanceX", 1, 3, 0, 3, Q("50 mm")),
    Sketcher.Constraint("DistanceX", -1, 1, 0, 3, Q("66.75 mm")),
])
doc.recompute()
hole = doc.addObject("PartDesign::Hole", "Hole")
body.addObject(hole)
hole.Profile = sketch14
hole.ThreadType = "None"
hole.Diameter = 4.2
hole.DepthType = "Dimension"
hole.Depth = 10
hole.DrillPoint = "Angled"
hole.DrillPointAngle = 118
hole.Reversed = True
doc.recompute()

fillet3 = doc.addObject("PartDesign::Fillet", "Fillet002")
body.addObject(fillet3)
fillet3.Base = (hole, edges_at(hole, [(10, 297.019, -31.096), (73.5, 297.019, -31.096)]))
fillet3.Radius = 10

sketch15 = doc.addObject("Sketcher::SketchObject", "Sketch014")
body.addObject(sketch15)
sketch15.AttachmentSupport = (doc.XY_Plane, [""])
sketch15.MapMode = "FlatFace"
sketch15.AttachmentOffset = App.Placement(V(0, 0, 41), App.Rotation())
sketch15.addGeometry([
    Part.ArcOfCircle(Part.Circle(V(15, 230, 0), V(0, 0, 1), 5), math.radians(90), math.radians(180)),
    Part.LineSegment(V(10, 230, 0), V(10, 178, 0)),
    Part.LineSegment(V(10, 178, 0), V(74, 178, 0)),
    Part.LineSegment(V(74, 178, 0), V(74, 230, 0)),
    Part.ArcOfCircle(Part.Circle(V(68, 230, 0), V(0, 0, 1), 5), math.radians(0), math.radians(90)),
    Part.LineSegment(V(68, 235, 0), V(15, 235, 0)),
], False)
sketch15.addConstraint([
    Sketcher.Constraint("Tangent", 0, 2, 1, 1),
    Sketcher.Constraint("Coincident", 1, 2, 2, 1),
    Sketcher.Constraint("Coincident", 2, 2, 3, 1),
    Sketcher.Constraint("Tangent", 3, 2, 4, 1),
    Sketcher.Constraint("Tangent", 4, 2, 5, 1),
    Sketcher.Constraint("Tangent", 5, 2, 0, 1),
    Sketcher.Constraint("Vertical", 1),
    Sketcher.Constraint("Horizontal", 2),
    Sketcher.Constraint("Vertical", 3),
    Sketcher.Constraint("Horizontal", 5),
    Sketcher.Constraint("Equal", 0, 4),
    Sketcher.Constraint("Radius", 0, Q("5 mm")),
    Sketcher.Constraint("DistanceX", 2, 1, 2, 2, Q("63.5 mm")),
    Sketcher.Constraint("DistanceX", -1, 1, 0, 3, Q("15 mm")),
    Sketcher.Constraint("DistanceY", -1, 1, 0, 3, Q("230 mm")),
    Sketcher.Constraint("DistanceY", 1, 2, 1, 1, Q("52.097459 mm")),
])
pocket8 = doc.addObject("PartDesign::Pocket", "Pocket007")
body.addObject(pocket8)
pocket8.Profile = sketch15
pocket8.Length = 31

doc.recompute()
